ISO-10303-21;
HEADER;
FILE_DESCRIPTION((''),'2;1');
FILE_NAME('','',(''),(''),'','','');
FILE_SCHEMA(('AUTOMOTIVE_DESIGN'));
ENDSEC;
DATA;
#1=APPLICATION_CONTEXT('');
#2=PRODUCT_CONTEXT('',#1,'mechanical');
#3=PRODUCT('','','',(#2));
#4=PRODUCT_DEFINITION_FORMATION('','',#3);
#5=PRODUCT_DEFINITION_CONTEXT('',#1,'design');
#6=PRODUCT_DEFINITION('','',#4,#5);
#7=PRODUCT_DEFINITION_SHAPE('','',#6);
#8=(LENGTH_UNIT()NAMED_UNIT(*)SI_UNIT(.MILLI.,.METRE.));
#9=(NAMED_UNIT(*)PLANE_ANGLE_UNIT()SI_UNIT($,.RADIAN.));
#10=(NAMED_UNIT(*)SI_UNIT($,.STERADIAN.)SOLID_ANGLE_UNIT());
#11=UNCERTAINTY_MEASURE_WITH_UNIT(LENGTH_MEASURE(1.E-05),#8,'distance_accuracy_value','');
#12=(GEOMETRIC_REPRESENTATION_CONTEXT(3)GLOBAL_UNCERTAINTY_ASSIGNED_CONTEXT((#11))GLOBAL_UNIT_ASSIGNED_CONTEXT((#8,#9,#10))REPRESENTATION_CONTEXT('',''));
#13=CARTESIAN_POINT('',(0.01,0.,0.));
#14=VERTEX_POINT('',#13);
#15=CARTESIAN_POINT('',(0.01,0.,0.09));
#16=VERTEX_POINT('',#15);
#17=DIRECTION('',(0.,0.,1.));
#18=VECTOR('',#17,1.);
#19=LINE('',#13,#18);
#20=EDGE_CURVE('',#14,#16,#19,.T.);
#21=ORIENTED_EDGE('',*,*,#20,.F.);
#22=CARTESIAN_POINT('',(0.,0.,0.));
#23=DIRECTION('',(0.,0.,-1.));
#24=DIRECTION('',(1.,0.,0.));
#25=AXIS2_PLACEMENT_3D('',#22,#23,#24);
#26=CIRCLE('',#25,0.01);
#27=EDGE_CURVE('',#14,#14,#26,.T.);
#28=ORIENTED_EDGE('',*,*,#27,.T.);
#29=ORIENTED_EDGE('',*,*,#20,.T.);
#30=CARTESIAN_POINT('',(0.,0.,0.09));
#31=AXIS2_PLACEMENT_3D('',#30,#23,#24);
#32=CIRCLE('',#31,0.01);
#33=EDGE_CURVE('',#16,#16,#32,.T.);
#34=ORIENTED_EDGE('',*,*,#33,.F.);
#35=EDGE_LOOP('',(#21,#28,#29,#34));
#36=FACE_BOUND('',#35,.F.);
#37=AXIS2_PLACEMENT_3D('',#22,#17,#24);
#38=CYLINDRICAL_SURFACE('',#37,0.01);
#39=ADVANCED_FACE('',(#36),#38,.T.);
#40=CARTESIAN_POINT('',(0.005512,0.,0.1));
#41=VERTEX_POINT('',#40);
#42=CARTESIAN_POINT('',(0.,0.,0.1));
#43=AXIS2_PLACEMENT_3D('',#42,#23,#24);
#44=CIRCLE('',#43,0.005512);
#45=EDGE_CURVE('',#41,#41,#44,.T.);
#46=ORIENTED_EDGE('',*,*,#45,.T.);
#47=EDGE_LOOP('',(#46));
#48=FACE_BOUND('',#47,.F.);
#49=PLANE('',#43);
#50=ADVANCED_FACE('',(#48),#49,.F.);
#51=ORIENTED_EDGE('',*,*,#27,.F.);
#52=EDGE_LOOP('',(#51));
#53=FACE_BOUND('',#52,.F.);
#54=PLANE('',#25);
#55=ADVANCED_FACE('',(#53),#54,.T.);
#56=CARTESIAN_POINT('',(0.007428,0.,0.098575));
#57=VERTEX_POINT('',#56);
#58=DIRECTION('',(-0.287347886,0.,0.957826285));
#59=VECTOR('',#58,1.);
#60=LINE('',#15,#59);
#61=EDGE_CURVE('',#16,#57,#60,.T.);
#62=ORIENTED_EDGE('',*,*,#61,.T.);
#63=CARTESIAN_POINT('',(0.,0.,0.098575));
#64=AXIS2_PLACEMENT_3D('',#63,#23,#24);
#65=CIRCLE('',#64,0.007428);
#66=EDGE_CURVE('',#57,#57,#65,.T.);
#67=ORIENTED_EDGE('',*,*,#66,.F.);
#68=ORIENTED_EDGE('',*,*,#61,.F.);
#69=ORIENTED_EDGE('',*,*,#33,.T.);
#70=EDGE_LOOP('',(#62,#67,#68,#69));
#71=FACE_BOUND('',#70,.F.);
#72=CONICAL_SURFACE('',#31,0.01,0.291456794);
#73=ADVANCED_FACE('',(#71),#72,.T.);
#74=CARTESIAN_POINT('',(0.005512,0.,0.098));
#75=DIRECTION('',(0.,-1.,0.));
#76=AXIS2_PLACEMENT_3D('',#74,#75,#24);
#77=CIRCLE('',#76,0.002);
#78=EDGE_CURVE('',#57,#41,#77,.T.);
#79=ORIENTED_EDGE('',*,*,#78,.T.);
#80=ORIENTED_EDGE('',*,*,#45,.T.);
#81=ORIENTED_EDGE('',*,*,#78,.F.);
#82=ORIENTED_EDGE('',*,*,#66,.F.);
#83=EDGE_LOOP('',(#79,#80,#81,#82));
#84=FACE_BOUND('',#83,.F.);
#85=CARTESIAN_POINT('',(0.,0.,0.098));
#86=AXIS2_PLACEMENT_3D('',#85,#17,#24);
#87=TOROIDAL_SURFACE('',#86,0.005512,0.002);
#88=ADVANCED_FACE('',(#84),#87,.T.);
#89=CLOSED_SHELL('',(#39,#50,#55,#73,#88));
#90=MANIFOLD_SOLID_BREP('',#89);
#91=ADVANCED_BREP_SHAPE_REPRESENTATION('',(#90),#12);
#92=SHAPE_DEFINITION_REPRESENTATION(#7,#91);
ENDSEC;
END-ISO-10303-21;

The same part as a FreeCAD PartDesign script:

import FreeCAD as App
import Part
import Sketcher
from FreeCAD import Vector
Q = App.Units.Quantity


def edges_at(feature, points):
    """Names of the edges that pass closest to the given points."""
    edges = feature.Shape.Edges
    near = lambda p: min(range(len(edges)), key=lambda i: edges[i].distToShape(Part.Vertex(*p))[0])
    return sorted({f"Edge{near(p) + 1}" for p in points})

doc = App.newDocument("Part")
body = doc.addObject("PartDesign::Body", "Body")

sketch1 = body.newObject("Sketcher::SketchObject", "Sketch")
sketch1.AttachmentSupport = (doc.getObject("XZ_Plane"), [""])
sketch1.MapMode = "FlatFace"
sketch1.addGeometry([
    Part.LineSegment(Vector(0, 0.1, 0), Vector(0, 0, 0)),
    Part.LineSegment(Vector(0, 0, 0), Vector(0.01, 0, 0)),
    Part.LineSegment(Vector(0.01, 0, 0), Vector(0.01, 0.09, 0)),
    Part.LineSegment(Vector(0.01, 0.09, 0), Vector(0.007, 0.1, 0)),
    Part.LineSegment(Vector(0.007, 0.1, 0), Vector(0, 0.1, 0)),
], False)
sketch1.addConstraint([
    Sketcher.Constraint("Coincident", 0, 2, 1, 1),
    Sketcher.Constraint("Coincident", 1, 2, 2, 1),
    Sketcher.Constraint("Coincident", 2, 2, 3, 1),
    Sketcher.Constraint("Coincident", 3, 2, 4, 1),
    Sketcher.Constraint("Coincident", 4, 2, 0, 1),
    Sketcher.Constraint("Vertical", 0),
    Sketcher.Constraint("Horizontal", 1),
    Sketcher.Constraint("Vertical", 2),
    Sketcher.Constraint("Horizontal", 4),
    Sketcher.Constraint("Coincident", 0, 2, -1, 1),
    Sketcher.Constraint("DistanceY", 0, 2, 0, 1, 0.1),
    Sketcher.Constraint("Angle", 3, Q("106.6992 deg")),
    Sketcher.Constraint("DistanceX", 1, 1, 1, 2, 0.01),
    Sketcher.Constraint("DistanceY", 2, 1, 2, 2, 0.09),
])
revolution = body.newObject("PartDesign::Revolution", "Revolution")
revolution.Profile = sketch1
revolution.ReferenceAxis = (sketch1, ["V_Axis"])
revolution.Angle = 360
doc.recompute()

fillet = body.newObject("PartDesign::Fillet", "Fillet")
fillet.Base = (revolution, edges_at(revolution, [(-0.007, 0, 0.1)]))
fillet.Radius = 0.002

doc.recompute()
